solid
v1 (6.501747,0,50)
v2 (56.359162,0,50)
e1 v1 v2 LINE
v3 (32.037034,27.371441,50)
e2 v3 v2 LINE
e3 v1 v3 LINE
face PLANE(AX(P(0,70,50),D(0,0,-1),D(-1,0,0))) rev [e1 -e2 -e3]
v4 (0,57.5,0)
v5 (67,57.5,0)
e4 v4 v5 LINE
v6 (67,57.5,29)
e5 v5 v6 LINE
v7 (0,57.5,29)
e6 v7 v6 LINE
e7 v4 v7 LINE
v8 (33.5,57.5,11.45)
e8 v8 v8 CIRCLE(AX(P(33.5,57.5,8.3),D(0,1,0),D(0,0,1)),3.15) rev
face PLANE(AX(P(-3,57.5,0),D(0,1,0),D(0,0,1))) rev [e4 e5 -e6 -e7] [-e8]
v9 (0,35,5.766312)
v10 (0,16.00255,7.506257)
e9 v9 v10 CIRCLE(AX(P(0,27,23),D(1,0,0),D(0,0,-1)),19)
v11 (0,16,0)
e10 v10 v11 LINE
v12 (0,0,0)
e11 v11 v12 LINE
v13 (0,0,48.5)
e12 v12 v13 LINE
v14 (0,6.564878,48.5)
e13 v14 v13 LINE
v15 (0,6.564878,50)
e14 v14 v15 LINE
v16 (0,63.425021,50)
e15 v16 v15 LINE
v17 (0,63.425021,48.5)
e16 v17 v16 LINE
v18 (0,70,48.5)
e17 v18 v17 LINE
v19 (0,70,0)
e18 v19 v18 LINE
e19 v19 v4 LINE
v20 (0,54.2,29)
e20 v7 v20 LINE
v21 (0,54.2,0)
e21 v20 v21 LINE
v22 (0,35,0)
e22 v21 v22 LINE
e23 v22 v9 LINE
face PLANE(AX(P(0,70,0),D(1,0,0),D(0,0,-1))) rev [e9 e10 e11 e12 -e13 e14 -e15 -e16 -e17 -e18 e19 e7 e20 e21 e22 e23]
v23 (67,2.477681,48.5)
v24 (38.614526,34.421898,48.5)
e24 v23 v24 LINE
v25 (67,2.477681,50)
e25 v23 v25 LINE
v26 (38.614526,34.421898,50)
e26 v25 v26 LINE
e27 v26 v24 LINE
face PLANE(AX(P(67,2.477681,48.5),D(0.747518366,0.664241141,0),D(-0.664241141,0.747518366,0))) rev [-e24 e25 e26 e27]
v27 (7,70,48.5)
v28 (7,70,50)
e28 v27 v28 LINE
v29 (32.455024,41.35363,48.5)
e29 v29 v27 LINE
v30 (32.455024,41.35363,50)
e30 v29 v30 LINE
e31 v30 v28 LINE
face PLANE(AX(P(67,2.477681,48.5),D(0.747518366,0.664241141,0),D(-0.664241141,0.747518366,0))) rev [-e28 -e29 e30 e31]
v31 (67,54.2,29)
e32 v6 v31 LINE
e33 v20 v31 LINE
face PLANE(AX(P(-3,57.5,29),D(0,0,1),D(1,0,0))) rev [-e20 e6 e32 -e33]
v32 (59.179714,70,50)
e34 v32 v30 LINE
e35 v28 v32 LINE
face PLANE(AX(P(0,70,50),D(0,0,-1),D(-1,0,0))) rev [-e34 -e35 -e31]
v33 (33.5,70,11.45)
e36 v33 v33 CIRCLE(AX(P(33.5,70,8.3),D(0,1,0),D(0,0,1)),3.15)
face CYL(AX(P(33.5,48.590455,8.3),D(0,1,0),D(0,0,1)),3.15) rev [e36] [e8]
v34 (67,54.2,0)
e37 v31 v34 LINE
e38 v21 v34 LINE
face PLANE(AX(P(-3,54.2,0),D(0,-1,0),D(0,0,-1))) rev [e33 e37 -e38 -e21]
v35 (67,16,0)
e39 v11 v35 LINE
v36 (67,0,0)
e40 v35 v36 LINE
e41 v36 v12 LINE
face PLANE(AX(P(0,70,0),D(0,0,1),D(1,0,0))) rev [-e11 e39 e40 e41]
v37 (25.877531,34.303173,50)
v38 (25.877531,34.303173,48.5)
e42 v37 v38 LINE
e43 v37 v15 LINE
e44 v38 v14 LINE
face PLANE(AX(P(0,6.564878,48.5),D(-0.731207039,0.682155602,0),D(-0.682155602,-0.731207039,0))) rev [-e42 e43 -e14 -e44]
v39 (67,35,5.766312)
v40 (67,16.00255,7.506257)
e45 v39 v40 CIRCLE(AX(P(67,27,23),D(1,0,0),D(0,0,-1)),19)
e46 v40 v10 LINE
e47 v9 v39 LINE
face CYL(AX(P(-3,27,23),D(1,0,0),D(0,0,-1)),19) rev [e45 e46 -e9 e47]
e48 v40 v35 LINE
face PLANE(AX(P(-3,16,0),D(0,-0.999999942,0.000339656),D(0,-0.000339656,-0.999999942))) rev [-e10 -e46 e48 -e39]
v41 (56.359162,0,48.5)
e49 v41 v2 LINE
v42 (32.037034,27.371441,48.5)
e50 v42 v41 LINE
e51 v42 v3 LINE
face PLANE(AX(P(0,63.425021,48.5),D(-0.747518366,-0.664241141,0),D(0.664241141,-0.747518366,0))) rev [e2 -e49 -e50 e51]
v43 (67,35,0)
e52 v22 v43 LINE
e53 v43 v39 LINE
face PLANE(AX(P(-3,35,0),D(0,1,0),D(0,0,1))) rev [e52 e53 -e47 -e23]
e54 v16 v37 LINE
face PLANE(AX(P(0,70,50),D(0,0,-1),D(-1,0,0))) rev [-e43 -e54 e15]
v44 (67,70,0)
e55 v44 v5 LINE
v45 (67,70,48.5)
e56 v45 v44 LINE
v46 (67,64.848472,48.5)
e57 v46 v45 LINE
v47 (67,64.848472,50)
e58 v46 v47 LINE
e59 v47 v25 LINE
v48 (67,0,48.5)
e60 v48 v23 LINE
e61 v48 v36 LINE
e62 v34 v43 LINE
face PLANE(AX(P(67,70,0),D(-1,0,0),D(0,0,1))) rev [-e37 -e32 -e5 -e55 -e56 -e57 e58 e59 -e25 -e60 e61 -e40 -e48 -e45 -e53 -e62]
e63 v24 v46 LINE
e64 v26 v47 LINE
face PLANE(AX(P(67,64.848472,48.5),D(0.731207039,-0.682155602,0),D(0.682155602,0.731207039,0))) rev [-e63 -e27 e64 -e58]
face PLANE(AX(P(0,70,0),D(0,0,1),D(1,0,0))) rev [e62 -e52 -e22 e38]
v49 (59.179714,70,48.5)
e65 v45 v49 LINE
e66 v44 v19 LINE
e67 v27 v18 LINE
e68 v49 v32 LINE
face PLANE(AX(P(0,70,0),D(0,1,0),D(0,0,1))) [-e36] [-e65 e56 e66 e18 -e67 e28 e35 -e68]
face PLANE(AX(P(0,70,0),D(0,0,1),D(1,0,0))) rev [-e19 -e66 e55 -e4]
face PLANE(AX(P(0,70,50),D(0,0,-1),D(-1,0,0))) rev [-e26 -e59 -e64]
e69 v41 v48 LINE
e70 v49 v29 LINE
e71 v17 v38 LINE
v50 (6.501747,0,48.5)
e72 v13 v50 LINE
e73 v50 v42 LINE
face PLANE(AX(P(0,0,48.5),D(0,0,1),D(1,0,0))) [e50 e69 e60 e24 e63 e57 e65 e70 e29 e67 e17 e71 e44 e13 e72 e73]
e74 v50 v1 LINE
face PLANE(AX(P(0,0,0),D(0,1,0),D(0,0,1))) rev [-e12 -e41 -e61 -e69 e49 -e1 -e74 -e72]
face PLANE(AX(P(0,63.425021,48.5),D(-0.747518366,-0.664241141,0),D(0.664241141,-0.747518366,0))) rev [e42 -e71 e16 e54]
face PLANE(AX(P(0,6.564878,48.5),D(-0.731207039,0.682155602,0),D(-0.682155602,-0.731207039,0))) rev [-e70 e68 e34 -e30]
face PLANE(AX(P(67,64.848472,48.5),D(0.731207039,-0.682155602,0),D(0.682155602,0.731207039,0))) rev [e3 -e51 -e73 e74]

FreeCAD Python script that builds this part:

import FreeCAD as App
import Part
import Sketcher
from FreeCAD import Vector
Q = App.Units.Quantity

doc = App.newDocument("Part")
params = doc.addObject("Spreadsheet::Sheet", "Params")
for row, (alias, value) in enumerate([
    ("sketch1_width", "67 mm"),
    ("sketch1_height", "50 mm"),
    ("pad1_length", "70 mm"),
    ("sketch2_diameter", "38 mm"),
    ("pocket1_length", "70 mm"),
    ("sketch3_width", "19 mm"),
    ("pocket2_length", "70 mm"),
    ("sketch4_height", "29 mm"),
    ("sketch4_width", "3.3 mm"),
    ("pocket3_length", "70 mm"),
    ("sketch5_diameter", "6.3 mm"),
    ("pocket4_length", "12.5 mm"),
    ("sketch6_width", "7 mm"),
    ("pocket5_length", "1.5 mm"),
    ("pocket6_length", "1.5 mm"),
], start=1):
    params.set(f"A{row}", alias)
    params.set(f"B{row}", "=" + value)
    params.setAlias(f"B{row}", alias)

body = doc.addObject("PartDesign::Body", "Body")

# Sketch on XZ plane
sketch1 = doc.addObject("Sketcher::SketchObject", "Sketch")
body.addObject(sketch1)
sketch1.AttachmentSupport = (doc.XZ_Plane, [""])
sketch1.MapMode = "FlatFace"
sketch1.addGeometry(Part.LineSegment(Vector(0, 0, 0), Vector(0, 50, 0)), False)
sketch1.addGeometry(Part.LineSegment(Vector(0, 50, 0), Vector(67, 50, 0)), False)
sketch1.addGeometry(Part.LineSegment(Vector(67, 50, 0), Vector(67, 0, 0)), False)
sketch1.addGeometry(Part.LineSegment(Vector(67, 0, 0), Vector(0, 0, 0)), False)
sketch1.addConstraint(Sketcher.Constraint("Coincident", 0, 2, 1, 1))
sketch1.addConstraint(Sketcher.Constraint("Coincident", 1, 2, 2, 1))
sketch1.addConstraint(Sketcher.Constraint("Coincident", 2, 2, 3, 1))
sketch1.addConstraint(Sketcher.Constraint("Coincident", 3, 2, 0, 1))
sketch1.addConstraint(Sketcher.Constraint("Vertical", 0))
sketch1.addConstraint(Sketcher.Constraint("Horizontal", 1))
sketch1.addConstraint(Sketcher.Constraint("Vertical", 2))
sketch1.addConstraint(Sketcher.Constraint("Horizontal", 3))
sketch1.addConstraint(Sketcher.Constraint("Coincident", 3, 2, -1, 1))
sketch1.addConstraint(Sketcher.Constraint("DistanceX", 1, 1, 1, 2, Q("67 mm")))
sketch1.addConstraint(Sketcher.Constraint("DistanceY", 0, 1, 0, 2, Q("50 mm")))
sketch1.setExpression("Constraints[9]", "Params.sketch1_width")
sketch1.setExpression("Constraints[10]", "Params.sketch1_height")
pad1 = doc.addObject("PartDesign::Pad", "Pad")
body.addObject(pad1)
pad1.Profile = sketch1
pad1.setExpression("Length", "Params.pad1_length")
pad1.Reversed = True

# Sketch on YZ plane
sketch2 = doc.addObject("Sketcher::SketchObject", "Sketch001")
body.addObject(sketch2)
sketch2.AttachmentSupport = (doc.YZ_Plane, [""])
sketch2.MapMode = "FlatFace"
sketch2.AttachmentOffset = App.Placement(Vector(0, 0, 67), App.Rotation())
sketch2.addGeometry(Part.Circle(Vector(27, 23, 0), Vector(0, 0, 1), 19), False)
sketch2.addConstraint(Sketcher.Constraint("Diameter", 0, Q("38 mm")))
sketch2.addConstraint(Sketcher.Constraint("DistanceX", -1, 1, 0, 3, Q("27 mm")))
sketch2.addConstraint(Sketcher.Constraint("DistanceY", -1, 1, 0, 3, Q("23 mm")))
sketch2.setExpression("Constraints[0]", "Params.sketch2_diameter")
pocket1 = doc.addObject("PartDesign::Pocket", "Pocket")
body.addObject(pocket1)
pocket1.Profile = sketch2
pocket1.setExpression("Length", "Params.pocket1_length")

# Sketch on YZ plane
sketch3 = doc.addObject("Sketcher::SketchObject", "Sketch002")
body.addObject(sketch3)
sketch3.AttachmentSupport = (doc.YZ_Plane, [""])
sketch3.MapMode = "FlatFace"
sketch3.AttachmentOffset = App.Placement(Vector(0, 0, 67), App.Rotation())
sketch3.addGeometry(Part.LineSegment(Vector(35, 0, 0), Vector(35, 6, 0)), False)
sketch3.addGeometry(Part.LineSegment(Vector(35, 6, 0), Vector(27, 4, 0)), False)
sketch3.addGeometry(Part.LineSegment(Vector(27, 4, 0), Vector(16, 8, 0)), False)
sketch3.addGeometry(Part.LineSegment(Vector(16, 8, 0), Vector(16, 0, 0)), False)
sketch3.addGeometry(Part.LineSegment(Vector(16, 0, 0), Vector(35, 0, 0)), False)
sketch3.addConstraint(Sketcher.Constraint("Coincident", 0, 2, 1, 1))
sketch3.addConstraint(Sketcher.Constraint("Coincident", 1, 2, 2, 1))
sketch3.addConstraint(Sketcher.Constraint("Coincident", 2, 2, 3, 1))
sketch3.addConstraint(Sketcher.Constraint("Coincident", 3, 2, 4, 1))
sketch3.addConstraint(Sketcher.Constraint("Coincident", 4, 2, 0, 1))
sketch3.addConstraint(Sketcher.Constraint("Vertical", 0))
sketch3.addConstraint(Sketcher.Constraint("Horizontal", 4))
sketch3.addConstraint(Sketcher.Constraint("PointOnObject", 3, 2, -1))
sketch3.addConstraint(Sketcher.Constraint("DistanceX", 4, 1, 4, 2, Q("19 mm")))
sketch3.addConstraint(Sketcher.Constraint("DistanceX", -1, 1, 0, 2, Q("35 mm")))
sketch3.addConstraint(Sketcher.Constraint("DistanceX", -1, 1, 1, 2, Q("27 mm")))
sketch3.addConstraint(Sketcher.Constraint("DistanceY", -1, 1, 1, 2, Q("4 mm")))
sketch3.addConstraint(Sketcher.Constraint("Distance", 1, Q("8.192671 mm")))
sketch3.addConstraint(Sketcher.Constraint("DistanceX", -1, 1, 2, 2, Q("16.00255 mm")))
sketch3.addConstraint(Sketcher.Constraint("Distance", 2, Q("11.542866 mm")))
sketch3.setExpression("Constraints[8]", "Params.sketch3_width")
pocket2 = doc.addObject("PartDesign::Pocket", "Pocket001")
body.addObject(pocket2)
pocket2.Profile = sketch3
pocket2.setExpression("Length", "Params.pocket2_length")

# Sketch on YZ plane
sketch4 = doc.addObject("Sketcher::SketchObject", "Sketch003")
body.addObject(sketch4)
sketch4.AttachmentSupport = (doc.YZ_Plane, [""])
sketch4.MapMode = "FlatFace"
sketch4.AttachmentOffset = App.Placement(Vector(0, 0, 67), App.Rotation())
sketch4.addGeometry(Part.LineSegment(Vector(57.5, 29, 0), Vector(54.2, 29, 0)), False)
sketch4.addGeometry(Part.LineSegment(Vector(54.2, 29, 0), Vector(54.2, 0, 0)), False)
sketch4.addGeometry(Part.LineSegment(Vector(54.2, 0, 0), Vector(57.5, 0, 0)), False)
sketch4.addGeometry(Part.LineSegment(Vector(57.5, 0, 0), Vector(57.5, 29, 0)), False)
sketch4.addConstraint(Sketcher.Constraint("Coincident", 0, 2, 1, 1))
sketch4.addConstraint(Sketcher.Constraint("Coincident", 1, 2, 2, 1))
sketch4.addConstraint(Sketcher.Constraint("Coincident", 2, 2, 3, 1))
sketch4.addConstraint(Sketcher.Constraint("Coincident", 3, 2, 0, 1))
sketch4.addConstraint(Sketcher.Constraint("Horizontal", 0))
sketch4.addConstraint(Sketcher.Constraint("Vertical", 1))
sketch4.addConstraint(Sketcher.Constraint("Horizontal", 2))
sketch4.addConstraint(Sketcher.Constraint("Vertical", 3))
sketch4.addConstraint(Sketcher.Constraint("PointOnObject", 1, 2, -1))
sketch4.addConstraint(Sketcher.Constraint("DistanceY", 1, 2, 1, 1, Q("29 mm")))
sketch4.addConstraint(Sketcher.Constraint("DistanceX", 0, 2, 0, 1, Q("3.3 mm")))
sketch4.addConstraint(Sketcher.Constraint("DistanceX", -1, 1, 0, 2, Q("54.2 mm")))
sketch4.setExpression("Constraints[9]", "Params.sketch4_height")
sketch4.setExpression("Constraints[10]", "Params.sketch4_width")
pocket3 = doc.addObject("PartDesign::Pocket", "Pocket002")
body.addObject(pocket3)
pocket3.Profile = sketch4
pocket3.setExpression("Length", "Params.pocket3_length")

# Sketch on XZ plane
sketch5 = doc.addObject("Sketcher::SketchObject", "Sketch004")
body.addObject(sketch5)
sketch5.AttachmentSupport = (doc.XZ_Plane, [""])
sketch5.MapMode = "FlatFace"
sketch5.AttachmentOffset = App.Placement(Vector(0, 0, -70), App.Rotation())
sketch5.addGeometry(Part.Circle(Vector(33.5, 8.3, 0), Vector(0, 0, 1), 3.1), False)
sketch5.addConstraint(Sketcher.Constraint("Diameter", 0, Q("6.3 mm")))
sketch5.addConstraint(Sketcher.Constraint("DistanceX", -1, 1, 0, 3, Q("33.5 mm")))
sketch5.addConstraint(Sketcher.Constraint("DistanceY", -1, 1, 0, 3, Q("8.3 mm")))
sketch5.setExpression("Constraints[0]", "Params.sketch5_diameter")
pocket4 = doc.addObject("PartDesign::Pocket", "Pocket003")
body.addObject(pocket4)
pocket4.Profile = sketch5
pocket4.setExpression("Length", "Params.pocket4_length")
pocket4.Reversed = True

# Sketch on XY plane
sketch6 = doc.addObject("Sketcher::SketchObject", "Sketch005")
body.addObject(sketch6)
sketch6.AttachmentSupport = (doc.XY_Plane, [""])
sketch6.MapMode = "FlatFace"
sketch6.AttachmentOffset = App.Placement(Vector(0, 0, 50), App.Rotation())
sketch6.addGeometry(Part.LineSegment(Vector(0, 63.4, 0), Vector(56.4, 0, 0)), False)
sketch6.addGeometry(Part.LineSegment(Vector(56.4, 0, 0), Vector(67, 0, 0)), False)
sketch6.addGeometry(Part.LineSegment(Vector(67, 0, 0), Vector(67, 2.5, 0)), False)
sketch6.addGeometry(Part.LineSegment(Vector(67, 2.5, 0), Vector(7, 70, 0)), False)
sketch6.addGeometry(Part.LineSegment(Vector(7, 70, 0), Vector(0, 70, 0)), False)
sketch6.addGeometry(Part.LineSegment(Vector(0, 70, 0), Vector(0, 63.4, 0)), False)
sketch6.addConstraint(Sketcher.Constraint("Coincident", 0, 2, 1, 1))
sketch6.addConstraint(Sketcher.Constraint("Coincident", 1, 2, 2, 1))
sketch6.addConstraint(Sketcher.Constraint("Coincident", 2, 2, 3, 1))
sketch6.addConstraint(Sketcher.Constraint("Coincident", 3, 2, 4, 1))
sketch6.addConstraint(Sketcher.Constraint("Coincident", 4, 2, 5, 1))
sketch6.addConstraint(Sketcher.Constraint("Coincident", 5, 2, 0, 1))
sketch6.addConstraint(Sketcher.Constraint("Horizontal", 1))
sketch6.addConstraint(Sketcher.Constraint("Vertical", 2))
sketch6.addConstraint(Sketcher.Constraint("Horizontal", 4))
sketch6.addConstraint(Sketcher.Constraint("Vertical", 5))
sketch6.addConstraint(Sketcher.Constraint("PointOnObject", 0, 2, -1))
sketch6.addConstraint(Sketcher.Constraint("PointOnObject", 4, 2, -2))
sketch6.addConstraint(Sketcher.Constraint("Parallel", 0, 3))
sketch6.addConstraint(Sketcher.Constraint("DistanceX", 4, 2, 4, 1, Q("7 mm")))
sketch6.addConstraint(Sketcher.Constraint("DistanceX", -1, 1, 1, 2, Q("67 mm")))
sketch6.addConstraint(Sketcher.Constraint("DistanceY", -1, 1, 3, 2, Q("70 mm")))
sketch6.addConstraint(Sketcher.Constraint("DistanceX", 1, 1, 1, 2, Q("10.640838 mm")))
sketch6.addConstraint(Sketcher.Constraint("DistanceY", 2, 1, 2, 2, Q("2.477681 mm")))
sketch6.setExpression("Constraints[13]", "Params.sketch6_width")
pocket5 = doc.addObject("PartDesign::Pocket", "Pocket004")
body.addObject(pocket5)
pocket5.Profile = sketch6
pocket5.setExpression("Length", "Params.pocket5_length")

# Sketch on XY plane
sketch7 = doc.addObject("Sketcher::SketchObject", "Sketch006")
body.addObject(sketch7)
sketch7.AttachmentSupport = (doc.XY_Plane, [""])
sketch7.MapMode = "FlatFace"
sketch7.AttachmentOffset = App.Placement(Vector(0, 0, 50), App.Rotation())
sketch7.addGeometry(Part.LineSegment(Vector(59, 70, 0), Vector(0, 7, 0)), False)
sketch7.addGeometry(Part.LineSegment(Vector(0, 7, 0), Vector(0, 0, 0)), False)
sketch7.addGeometry(Part.LineSegment(Vector(0, 0, 0), Vector(7, 0, 0)), False)
sketch7.addGeometry(Part.LineSegment(Vector(7, 0, 0), Vector(67, 65, 0)), False)
sketch7.addGeometry(Part.LineSegment(Vector(67, 65, 0), Vector(67, 70, 0)), False)
sketch7.addGeometry(Part.LineSegment(Vector(67, 70, 0), Vector(59, 70, 0)), False)
sketch7.addConstraint(Sketcher.Constraint("Coincident", 0, 2, 1, 1))
sketch7.addConstraint(Sketcher.Constraint("Coincident", 1, 2, 2, 1))
sketch7.addConstraint(Sketcher.Constraint("Coincident", 2, 2, 3, 1))
sketch7.addConstraint(Sketcher.Constraint("Coincident", 3, 2, 4, 1))
sketch7.addConstraint(Sketcher.Constraint("Coincident", 4, 2, 5, 1))
sketch7.addConstraint(Sketcher.Constraint("Coincident", 5, 2, 0, 1))
sketch7.addConstraint(Sketcher.Constraint("Vertical", 1))
sketch7.addConstraint(Sketcher.Constraint("Horizontal", 2))
sketch7.addConstraint(Sketcher.Constraint("Vertical", 4))
sketch7.addConstraint(Sketcher.Constraint("Horizontal", 5))
sketch7.addConstraint(Sketcher.Constraint("Coincident", 1, 2, -1, 1))
sketch7.addConstraint(Sketcher.Constraint("Parallel", 0, 3))
sketch7.addConstraint(Sketcher.Constraint("DistanceX", -1, 1, 3, 2, Q("67 mm")))
sketch7.addConstraint(Sketcher.Constraint("DistanceY", -1, 1, 4, 2, Q("70 mm")))
sketch7.addConstraint(Sketcher.Constraint("DistanceY", 1, 2, 1, 1, Q("6.564878 mm")))
sketch7.addConstraint(Sketcher.Constraint("Distance", 0, Q("86.753981 mm")))
sketch7.addConstraint(Sketcher.Constraint("DistanceX", 2, 1, 2, 2, Q("6.501747 mm")))
pocket6 = doc.addObject("PartDesign::Pocket", "Pocket005")
body.addObject(pocket6)
pocket6.Profile = sketch7
pocket6.setExpression("Length", "Params.pocket6_length")

doc.recompute()
